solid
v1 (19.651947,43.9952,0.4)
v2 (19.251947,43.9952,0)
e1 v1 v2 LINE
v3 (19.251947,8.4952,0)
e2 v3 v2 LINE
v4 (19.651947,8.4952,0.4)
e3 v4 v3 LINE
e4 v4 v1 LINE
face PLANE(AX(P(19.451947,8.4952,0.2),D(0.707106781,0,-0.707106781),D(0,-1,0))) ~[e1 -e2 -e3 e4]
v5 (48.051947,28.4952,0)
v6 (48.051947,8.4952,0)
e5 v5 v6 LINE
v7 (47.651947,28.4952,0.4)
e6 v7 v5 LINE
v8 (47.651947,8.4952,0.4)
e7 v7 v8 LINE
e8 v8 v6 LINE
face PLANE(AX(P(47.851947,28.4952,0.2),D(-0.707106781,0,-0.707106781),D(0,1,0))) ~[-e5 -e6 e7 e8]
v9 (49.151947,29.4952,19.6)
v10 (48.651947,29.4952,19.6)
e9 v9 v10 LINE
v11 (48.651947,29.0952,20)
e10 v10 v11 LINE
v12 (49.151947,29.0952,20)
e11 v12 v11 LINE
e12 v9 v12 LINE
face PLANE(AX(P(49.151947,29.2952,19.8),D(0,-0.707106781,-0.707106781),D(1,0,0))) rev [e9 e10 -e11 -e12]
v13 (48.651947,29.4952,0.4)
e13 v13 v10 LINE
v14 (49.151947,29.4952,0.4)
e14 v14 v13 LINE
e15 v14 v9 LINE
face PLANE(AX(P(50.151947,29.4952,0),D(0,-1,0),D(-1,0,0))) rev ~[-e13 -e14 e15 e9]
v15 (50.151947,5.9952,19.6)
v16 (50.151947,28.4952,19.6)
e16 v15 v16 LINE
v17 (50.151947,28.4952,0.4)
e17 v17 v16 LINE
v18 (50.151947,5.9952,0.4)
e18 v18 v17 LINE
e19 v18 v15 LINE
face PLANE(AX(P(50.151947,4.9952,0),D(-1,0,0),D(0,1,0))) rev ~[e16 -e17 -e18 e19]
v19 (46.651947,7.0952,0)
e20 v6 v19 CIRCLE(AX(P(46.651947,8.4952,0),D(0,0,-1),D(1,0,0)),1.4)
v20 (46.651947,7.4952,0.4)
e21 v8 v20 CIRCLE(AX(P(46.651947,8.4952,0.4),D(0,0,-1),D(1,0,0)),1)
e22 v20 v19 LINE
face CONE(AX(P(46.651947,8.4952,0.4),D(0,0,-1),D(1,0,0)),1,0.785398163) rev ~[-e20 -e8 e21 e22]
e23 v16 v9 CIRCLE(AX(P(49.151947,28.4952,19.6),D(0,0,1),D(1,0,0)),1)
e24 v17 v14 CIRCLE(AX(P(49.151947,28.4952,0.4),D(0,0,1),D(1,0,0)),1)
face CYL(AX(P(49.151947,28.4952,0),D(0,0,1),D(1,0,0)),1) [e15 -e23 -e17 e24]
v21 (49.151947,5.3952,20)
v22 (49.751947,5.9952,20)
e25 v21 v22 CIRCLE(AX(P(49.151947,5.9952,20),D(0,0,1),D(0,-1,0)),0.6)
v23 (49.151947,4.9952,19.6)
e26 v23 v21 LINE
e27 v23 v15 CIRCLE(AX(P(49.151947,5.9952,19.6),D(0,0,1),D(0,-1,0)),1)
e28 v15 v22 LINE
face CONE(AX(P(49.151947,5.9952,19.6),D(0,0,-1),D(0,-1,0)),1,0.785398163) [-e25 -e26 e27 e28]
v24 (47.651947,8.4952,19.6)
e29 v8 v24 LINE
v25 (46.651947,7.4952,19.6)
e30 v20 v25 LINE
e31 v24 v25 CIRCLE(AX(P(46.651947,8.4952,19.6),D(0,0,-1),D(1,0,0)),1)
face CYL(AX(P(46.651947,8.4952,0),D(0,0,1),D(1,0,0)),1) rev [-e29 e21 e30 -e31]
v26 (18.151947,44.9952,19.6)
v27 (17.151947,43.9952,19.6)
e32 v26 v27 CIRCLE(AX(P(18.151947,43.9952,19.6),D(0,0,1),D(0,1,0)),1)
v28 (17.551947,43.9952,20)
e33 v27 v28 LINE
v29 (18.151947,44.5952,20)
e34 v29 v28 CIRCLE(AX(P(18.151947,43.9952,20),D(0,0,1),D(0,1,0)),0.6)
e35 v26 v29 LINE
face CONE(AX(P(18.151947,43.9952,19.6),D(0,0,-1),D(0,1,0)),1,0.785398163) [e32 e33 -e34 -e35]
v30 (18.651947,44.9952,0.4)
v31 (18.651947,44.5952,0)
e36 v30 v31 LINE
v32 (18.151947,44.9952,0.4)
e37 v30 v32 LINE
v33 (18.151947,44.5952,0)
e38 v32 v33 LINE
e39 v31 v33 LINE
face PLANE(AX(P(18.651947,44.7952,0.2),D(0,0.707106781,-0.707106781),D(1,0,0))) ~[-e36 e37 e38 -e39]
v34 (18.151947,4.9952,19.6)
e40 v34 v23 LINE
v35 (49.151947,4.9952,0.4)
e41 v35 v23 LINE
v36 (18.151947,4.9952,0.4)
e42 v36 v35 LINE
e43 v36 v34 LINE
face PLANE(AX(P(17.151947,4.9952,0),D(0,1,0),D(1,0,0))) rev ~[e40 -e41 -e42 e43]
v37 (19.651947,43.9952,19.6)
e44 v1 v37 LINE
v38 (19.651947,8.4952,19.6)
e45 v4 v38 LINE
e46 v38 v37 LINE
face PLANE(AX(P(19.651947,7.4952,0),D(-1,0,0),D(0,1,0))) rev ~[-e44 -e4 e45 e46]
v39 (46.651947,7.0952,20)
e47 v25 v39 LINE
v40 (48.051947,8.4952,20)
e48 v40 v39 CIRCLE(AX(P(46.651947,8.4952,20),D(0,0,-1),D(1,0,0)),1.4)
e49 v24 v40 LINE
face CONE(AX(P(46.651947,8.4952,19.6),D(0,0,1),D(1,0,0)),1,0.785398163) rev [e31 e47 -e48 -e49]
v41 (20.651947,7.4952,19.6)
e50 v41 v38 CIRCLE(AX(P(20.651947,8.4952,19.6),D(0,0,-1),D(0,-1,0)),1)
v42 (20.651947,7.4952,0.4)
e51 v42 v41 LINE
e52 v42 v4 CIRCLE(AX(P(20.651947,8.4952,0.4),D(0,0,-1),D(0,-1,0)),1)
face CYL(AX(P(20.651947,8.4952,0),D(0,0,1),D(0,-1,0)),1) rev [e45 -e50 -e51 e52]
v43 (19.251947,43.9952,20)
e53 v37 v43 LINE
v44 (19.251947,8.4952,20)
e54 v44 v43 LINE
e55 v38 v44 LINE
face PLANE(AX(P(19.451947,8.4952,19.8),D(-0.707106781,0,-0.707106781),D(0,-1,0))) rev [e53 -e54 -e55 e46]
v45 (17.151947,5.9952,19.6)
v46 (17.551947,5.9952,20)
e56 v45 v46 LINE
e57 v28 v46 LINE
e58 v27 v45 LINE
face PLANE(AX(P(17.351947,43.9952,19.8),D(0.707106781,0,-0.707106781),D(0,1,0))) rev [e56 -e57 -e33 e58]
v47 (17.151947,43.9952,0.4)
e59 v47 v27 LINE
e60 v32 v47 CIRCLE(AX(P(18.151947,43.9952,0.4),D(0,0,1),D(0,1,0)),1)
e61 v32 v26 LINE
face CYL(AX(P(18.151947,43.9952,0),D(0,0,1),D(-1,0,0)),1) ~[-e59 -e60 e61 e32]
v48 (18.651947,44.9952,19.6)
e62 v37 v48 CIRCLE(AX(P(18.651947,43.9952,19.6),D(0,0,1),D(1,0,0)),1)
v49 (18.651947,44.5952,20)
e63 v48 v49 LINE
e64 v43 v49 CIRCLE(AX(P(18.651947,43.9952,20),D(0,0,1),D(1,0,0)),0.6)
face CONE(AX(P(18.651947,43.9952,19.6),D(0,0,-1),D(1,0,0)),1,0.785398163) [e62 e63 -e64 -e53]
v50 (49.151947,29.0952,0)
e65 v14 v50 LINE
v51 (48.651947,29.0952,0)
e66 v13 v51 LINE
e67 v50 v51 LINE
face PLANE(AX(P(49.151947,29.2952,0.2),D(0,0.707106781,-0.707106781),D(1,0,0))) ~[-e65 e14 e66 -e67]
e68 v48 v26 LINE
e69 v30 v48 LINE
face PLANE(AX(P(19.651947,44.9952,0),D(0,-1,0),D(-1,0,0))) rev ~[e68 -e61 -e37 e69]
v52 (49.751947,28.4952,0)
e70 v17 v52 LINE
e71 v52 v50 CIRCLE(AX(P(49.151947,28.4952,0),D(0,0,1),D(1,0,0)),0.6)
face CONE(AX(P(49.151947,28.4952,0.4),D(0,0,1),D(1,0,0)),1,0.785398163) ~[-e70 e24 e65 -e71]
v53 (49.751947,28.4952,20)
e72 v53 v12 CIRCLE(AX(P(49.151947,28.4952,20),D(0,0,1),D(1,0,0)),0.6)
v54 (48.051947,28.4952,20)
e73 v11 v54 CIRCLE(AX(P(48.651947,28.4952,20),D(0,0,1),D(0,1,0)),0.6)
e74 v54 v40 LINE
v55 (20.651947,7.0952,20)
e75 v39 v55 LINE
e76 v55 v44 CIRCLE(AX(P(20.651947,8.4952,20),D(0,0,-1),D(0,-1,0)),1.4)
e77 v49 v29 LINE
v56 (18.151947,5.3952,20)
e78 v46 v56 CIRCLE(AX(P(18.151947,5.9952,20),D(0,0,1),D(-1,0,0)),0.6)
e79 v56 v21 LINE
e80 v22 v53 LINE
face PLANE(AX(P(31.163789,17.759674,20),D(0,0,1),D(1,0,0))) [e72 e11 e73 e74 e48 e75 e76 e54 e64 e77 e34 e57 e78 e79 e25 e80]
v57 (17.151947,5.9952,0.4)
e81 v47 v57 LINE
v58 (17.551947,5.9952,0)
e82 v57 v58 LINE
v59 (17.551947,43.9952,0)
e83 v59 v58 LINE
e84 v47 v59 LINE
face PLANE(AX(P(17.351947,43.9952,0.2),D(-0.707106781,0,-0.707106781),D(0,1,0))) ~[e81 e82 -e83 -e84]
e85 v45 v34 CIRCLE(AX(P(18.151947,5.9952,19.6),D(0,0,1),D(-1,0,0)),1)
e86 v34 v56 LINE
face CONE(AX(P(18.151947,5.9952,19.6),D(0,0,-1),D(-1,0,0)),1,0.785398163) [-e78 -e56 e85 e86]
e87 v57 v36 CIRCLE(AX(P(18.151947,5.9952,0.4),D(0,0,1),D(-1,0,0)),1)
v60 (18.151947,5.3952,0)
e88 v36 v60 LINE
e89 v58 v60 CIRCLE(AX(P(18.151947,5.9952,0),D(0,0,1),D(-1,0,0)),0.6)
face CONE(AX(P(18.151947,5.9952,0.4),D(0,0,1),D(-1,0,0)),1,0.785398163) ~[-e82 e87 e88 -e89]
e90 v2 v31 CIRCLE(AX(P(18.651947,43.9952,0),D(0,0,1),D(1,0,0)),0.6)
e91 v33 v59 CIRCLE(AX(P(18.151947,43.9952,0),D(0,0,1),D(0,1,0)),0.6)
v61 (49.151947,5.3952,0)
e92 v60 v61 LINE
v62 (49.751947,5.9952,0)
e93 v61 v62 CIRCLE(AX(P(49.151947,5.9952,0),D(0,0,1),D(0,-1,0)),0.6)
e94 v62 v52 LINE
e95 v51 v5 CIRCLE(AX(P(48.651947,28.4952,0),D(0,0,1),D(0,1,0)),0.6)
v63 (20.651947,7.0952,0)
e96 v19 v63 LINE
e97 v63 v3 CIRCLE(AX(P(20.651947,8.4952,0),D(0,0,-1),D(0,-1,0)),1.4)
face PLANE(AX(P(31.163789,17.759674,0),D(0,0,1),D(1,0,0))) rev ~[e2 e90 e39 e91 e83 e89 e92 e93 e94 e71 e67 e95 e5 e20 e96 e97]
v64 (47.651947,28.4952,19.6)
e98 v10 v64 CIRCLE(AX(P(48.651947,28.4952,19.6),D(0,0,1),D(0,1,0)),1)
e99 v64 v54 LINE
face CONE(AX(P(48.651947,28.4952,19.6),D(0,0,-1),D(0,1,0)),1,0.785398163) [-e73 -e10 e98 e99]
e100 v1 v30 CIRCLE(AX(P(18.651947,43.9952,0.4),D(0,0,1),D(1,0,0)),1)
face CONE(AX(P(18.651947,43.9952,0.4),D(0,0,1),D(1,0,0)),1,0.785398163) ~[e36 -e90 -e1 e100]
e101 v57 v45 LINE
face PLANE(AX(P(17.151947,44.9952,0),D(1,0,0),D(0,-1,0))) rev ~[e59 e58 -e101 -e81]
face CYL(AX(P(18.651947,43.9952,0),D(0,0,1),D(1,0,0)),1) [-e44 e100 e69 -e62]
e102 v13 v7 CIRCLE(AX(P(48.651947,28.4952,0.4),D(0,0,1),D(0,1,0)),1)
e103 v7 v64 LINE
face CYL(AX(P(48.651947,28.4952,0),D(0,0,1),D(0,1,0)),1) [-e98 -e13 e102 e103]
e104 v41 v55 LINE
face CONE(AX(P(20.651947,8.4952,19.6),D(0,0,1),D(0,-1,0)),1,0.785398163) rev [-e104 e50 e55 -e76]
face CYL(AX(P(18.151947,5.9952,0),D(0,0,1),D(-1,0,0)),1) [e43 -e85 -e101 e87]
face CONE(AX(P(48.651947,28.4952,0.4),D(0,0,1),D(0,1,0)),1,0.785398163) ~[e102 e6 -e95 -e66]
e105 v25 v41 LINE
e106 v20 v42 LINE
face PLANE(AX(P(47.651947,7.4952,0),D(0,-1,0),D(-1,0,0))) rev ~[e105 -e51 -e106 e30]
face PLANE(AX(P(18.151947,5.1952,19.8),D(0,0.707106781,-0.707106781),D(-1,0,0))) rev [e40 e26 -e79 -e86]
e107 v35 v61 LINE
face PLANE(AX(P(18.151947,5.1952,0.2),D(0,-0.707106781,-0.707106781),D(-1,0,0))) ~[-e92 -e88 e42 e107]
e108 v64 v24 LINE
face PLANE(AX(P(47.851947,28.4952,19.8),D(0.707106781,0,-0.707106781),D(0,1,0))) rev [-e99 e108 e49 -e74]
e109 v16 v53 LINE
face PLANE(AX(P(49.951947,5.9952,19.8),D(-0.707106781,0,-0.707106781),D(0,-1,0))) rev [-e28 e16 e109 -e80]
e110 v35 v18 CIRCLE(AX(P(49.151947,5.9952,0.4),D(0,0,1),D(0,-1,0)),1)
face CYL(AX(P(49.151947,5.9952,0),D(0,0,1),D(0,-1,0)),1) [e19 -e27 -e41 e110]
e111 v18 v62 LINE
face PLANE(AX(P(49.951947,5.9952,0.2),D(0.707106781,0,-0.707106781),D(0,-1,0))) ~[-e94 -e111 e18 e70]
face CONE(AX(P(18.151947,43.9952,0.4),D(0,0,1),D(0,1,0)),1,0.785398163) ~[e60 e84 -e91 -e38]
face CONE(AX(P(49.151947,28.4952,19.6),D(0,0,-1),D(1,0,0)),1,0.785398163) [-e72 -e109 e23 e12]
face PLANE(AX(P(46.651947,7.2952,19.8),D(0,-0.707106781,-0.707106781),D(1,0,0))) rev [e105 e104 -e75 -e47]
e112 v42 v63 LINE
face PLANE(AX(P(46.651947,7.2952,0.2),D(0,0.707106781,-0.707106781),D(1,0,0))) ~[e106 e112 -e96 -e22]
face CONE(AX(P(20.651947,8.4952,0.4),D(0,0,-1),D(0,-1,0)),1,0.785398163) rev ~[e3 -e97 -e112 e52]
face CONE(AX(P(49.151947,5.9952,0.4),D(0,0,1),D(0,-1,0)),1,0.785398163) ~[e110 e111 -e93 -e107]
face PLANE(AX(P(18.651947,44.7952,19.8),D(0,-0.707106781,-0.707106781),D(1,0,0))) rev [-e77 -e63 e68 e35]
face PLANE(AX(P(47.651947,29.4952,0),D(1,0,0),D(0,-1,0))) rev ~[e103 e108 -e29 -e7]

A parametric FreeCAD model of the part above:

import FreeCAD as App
import Part
import Sketcher

V = App.Vector
Q = App.Units.Quantity


def edges_at(feature, points):
    """Names of the edges that pass closest to the given points."""
    edges = feature.Shape.Edges
    near = lambda p: min(range(len(edges)), key=lambda i: edges[i].distToShape(Part.Vertex(*p))[0])
    return sorted({f"Edge{near(p) + 1}" for p in points})


def add_polygon(sketch, points):
    """Adds a closed chain of lines whose ends are joined by coincident constraints."""
    first, n = sketch.GeometryCount, len(points)
    for a, b in zip(points, points[1:] + points[:1]):
        sketch.addGeometry(Part.LineSegment(App.Vector(*a, 0), App.Vector(*b, 0)), False)
    for i in range(n):
        sketch.addConstraint(Sketcher.Constraint("Coincident", first + i, 2, first + (i + 1) % n, 1))

doc = App.newDocument("Part")
body = doc.addObject("PartDesign::Body", "Body")

# Sketch on XY plane
sketch1 = body.newObject("Sketcher::SketchObject", "Sketch")
sketch1.AttachmentSupport = (doc.getObject("XY_Plane"), [""])
sketch1.MapMode = "FlatFace"
add_polygon(sketch1, [(17.151947, 44.9952), (17.151947, 4.9952), (50.151947, 4.9952), (50.151947, 29.4952), (47.651947, 29.4952), (47.651947, 7.4952), (19.651947, 7.4952), (19.651947, 44.9952)])  # lines 0-7
sketch1.addConstraint([
    Sketcher.Constraint("Vertical", 0),
    Sketcher.Constraint("Horizontal", 1),
    Sketcher.Constraint("Vertical", 2),
    Sketcher.Constraint("Horizontal", 3),
    Sketcher.Constraint("Vertical", 4),
    Sketcher.Constraint("Horizontal", 5),
    Sketcher.Constraint("Vertical", 6),
    Sketcher.Constraint("Horizontal", 7),
    Sketcher.Constraint("Equal", 3, 7),
    Sketcher.Constraint("DistanceX", 1, 1, 1, 2, Q("33 mm")),
    Sketcher.Constraint("DistanceX", 5, 2, 5, 1, Q("28 mm")),
    Sketcher.Constraint("DistanceY", 0, 2, 0, 1, Q("40 mm")),
    Sketcher.Constraint("DistanceY", 4, 2, 4, 1, Q("22 mm")),
    Sketcher.Constraint("DistanceY", 2, 1, 2, 2, Q("24.5 mm")),
    Sketcher.Constraint("DistanceY", -1, 1, 0, 2, Q("4.9952 mm")),
    Sketcher.Constraint("DistanceX", -1, 1, 0, 2, Q("17.151947 mm")),
])
pad1 = body.newObject("PartDesign::Pad", "Pad")
pad1.Profile = sketch1
pad1.Length = 20
doc.recompute()

fillet = body.newObject("PartDesign::Fillet", "Fillet")
fillet.Base = (pad1, edges_at(pad1, [
    (50.152, 4.995, 10),
    (17.152, 4.995, 10),
    (19.652, 7.495, 10),
    (17.152, 44.995, 10),
    (19.652, 44.995, 10),
    (47.652, 7.495, 10),
    (47.652, 29.495, 10),
    (50.152, 29.495, 10),
]))
fillet.Radius = 1
doc.recompute()

chamfer = body.newObject("PartDesign::Chamfer", "Chamfer")
chamfer.Base = (fillet, edges_at(fillet, [
    (17.152, 24.995, 20),
    (17.445, 44.702, 20),
    (17.445, 5.288, 20),
    (18.402, 44.995, 20),
    (33.652, 4.995, 20),
    (19.359, 44.702, 20),
    (49.859, 5.288, 20),
    (19.652, 26.245, 20),
    (50.152, 17.245, 20),
    (19.945, 7.788, 20),
    (49.859, 29.202, 20),
    (33.652, 7.495, 20),
    (48.902, 29.495, 20),
    (47.359, 7.788, 20),
    (47.945, 29.202, 20),
    (47.652, 18.495, 20),
    (17.152, 24.995, 0),
    (17.445, 44.702, 0),
    (17.445, 5.288, 0),
    (18.402, 44.995, 0),
    (33.652, 4.995, 0),
    (19.359, 44.702, 0),
    (49.859, 5.288, 0),
    (19.652, 26.245, 0),
    (50.152, 17.245, 0),
    (19.945, 7.788, 0),
    (49.859, 29.202, 0),
    (33.652, 7.495, 0),
    (48.902, 29.495, 0),
    (47.359, 7.788, 0),
    (47.945, 29.202, 0),
    (47.652, 18.495, 0),
]))
chamfer.Size = 0.4

doc.recompute()
